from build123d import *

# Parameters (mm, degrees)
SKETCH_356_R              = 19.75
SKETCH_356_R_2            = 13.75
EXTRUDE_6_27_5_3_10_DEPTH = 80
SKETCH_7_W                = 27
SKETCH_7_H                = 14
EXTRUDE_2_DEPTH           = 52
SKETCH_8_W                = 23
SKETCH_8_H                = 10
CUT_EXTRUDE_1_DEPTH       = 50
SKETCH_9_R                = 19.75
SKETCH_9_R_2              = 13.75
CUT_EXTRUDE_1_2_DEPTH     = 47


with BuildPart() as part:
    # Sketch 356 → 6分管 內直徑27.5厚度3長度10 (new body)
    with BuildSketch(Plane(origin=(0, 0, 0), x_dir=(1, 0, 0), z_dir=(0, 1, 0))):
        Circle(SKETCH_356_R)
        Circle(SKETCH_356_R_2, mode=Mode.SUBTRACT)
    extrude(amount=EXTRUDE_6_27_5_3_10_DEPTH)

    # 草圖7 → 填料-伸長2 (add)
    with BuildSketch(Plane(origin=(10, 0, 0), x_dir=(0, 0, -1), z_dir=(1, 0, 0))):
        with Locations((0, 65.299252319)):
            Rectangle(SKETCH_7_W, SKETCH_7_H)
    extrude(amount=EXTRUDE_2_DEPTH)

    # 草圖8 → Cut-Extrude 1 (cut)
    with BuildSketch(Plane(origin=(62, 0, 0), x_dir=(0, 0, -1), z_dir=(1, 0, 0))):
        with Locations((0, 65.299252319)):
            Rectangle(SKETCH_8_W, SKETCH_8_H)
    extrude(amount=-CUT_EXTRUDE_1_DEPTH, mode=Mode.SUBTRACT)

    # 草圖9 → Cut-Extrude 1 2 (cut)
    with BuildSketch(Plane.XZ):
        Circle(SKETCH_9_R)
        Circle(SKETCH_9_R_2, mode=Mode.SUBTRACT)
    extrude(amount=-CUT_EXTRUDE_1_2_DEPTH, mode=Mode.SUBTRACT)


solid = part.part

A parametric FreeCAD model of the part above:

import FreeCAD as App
import Part
import Sketcher
from FreeCAD import Vector
Q = App.Units.Quantity

doc = App.newDocument("Part")
body = doc.addObject("PartDesign::Body", "Body")

# Sketch on XZ plane
sketch1 = body.newObject("Sketcher::SketchObject", "Sketch")
sketch1.AttachmentSupport = (doc.getObject("XZ_Plane"), [""])
sketch1.MapMode = "FlatFace"
sketch1.addGeometry([
    Part.Circle(Vector(0, 0, 0), Vector(0, 0, 1), 19.75),
    Part.Circle(Vector(0, 0, 0), Vector(0, 0, 1), 13.75),
], False)
sketch1.addConstraint([
    Sketcher.Constraint("Coincident", 0, 3, -1, 1),
    Sketcher.Constraint("Coincident", 1, 3, -1, 1),
    Sketcher.Constraint("Diameter", 0, Q("39.5 mm")),
    Sketcher.Constraint("Diameter", 1, Q("27.5 mm")),
])
pad1 = body.newObject("PartDesign::Pad", "Pad")
pad1.Profile = sketch1
pad1.Length = 80
pad1.Reversed = True

# Sketch on YZ plane
sketch2 = body.newObject("Sketcher::SketchObject", "Sketch001")
sketch2.AttachmentSupport = (doc.getObject("YZ_Plane"), [""])
sketch2.MapMode = "FlatFace"
sketch2.AttachmentOffset = App.Placement(Vector(0, 0, 10), App.Rotation())
sketch2.addGeometry([
    Part.LineSegment(Vector(72.299252, 13.5, 0), Vector(58.299252, 13.5, 0)),
    Part.LineSegment(Vector(58.299252, 13.5, 0), Vector(58.299252, -13.5, 0)),
    Part.LineSegment(Vector(58.299252, -13.5, 0), Vector(72.299252, -13.5, 0)),
    Part.LineSegment(Vector(72.299252, -13.5, 0), Vector(72.299252, 13.5, 0)),
], False)
sketch2.addConstraint([
    Sketcher.Constraint("Coincident", 0, 2, 1, 1),
    Sketcher.Constraint("Coincident", 1, 2, 2, 1),
    Sketcher.Constraint("Coincident", 2, 2, 3, 1),
    Sketcher.Constraint("Coincident", 3, 2, 0, 1),
    Sketcher.Constraint("Horizontal", 0),
    Sketcher.Constraint("Vertical", 1),
    Sketcher.Constraint("Horizontal", 2),
    Sketcher.Constraint("Vertical", 3),
    Sketcher.Constraint("DistanceX", 0, 2, 0, 1, Q("14 mm")),
    Sketcher.Constraint("DistanceY", 1, 2, 1, 1, Q("27 mm")),
    Sketcher.Constraint("DistanceY", -1, 1, 0, 2, Q("13.5 mm")),
    Sketcher.Constraint("DistanceX", -1, 1, 0, 2, Q("58.299252 mm")),
])
pad2 = body.newObject("PartDesign::Pad", "Pad001")
pad2.Profile = sketch2
pad2.Length = 52

# Sketch on YZ plane
sketch3 = body.newObject("Sketcher::SketchObject", "Sketch002")
sketch3.AttachmentSupport = (doc.getObject("YZ_Plane"), [""])
sketch3.MapMode = "FlatFace"
sketch3.AttachmentOffset = App.Placement(Vector(0, 0, 62), App.Rotation())
sketch3.addGeometry([
    Part.LineSegment(Vector(70.299252, 11.5, 0), Vector(60.299252, 11.5, 0)),
    Part.LineSegment(Vector(60.299252, 11.5, 0), Vector(60.299252, -11.5, 0)),
    Part.LineSegment(Vector(60.299252, -11.5, 0), Vector(70.299252, -11.5, 0)),
    Part.LineSegment(Vector(70.299252, -11.5, 0), Vector(70.299252, 11.5, 0)),
], False)
sketch3.addConstraint([
    Sketcher.Constraint("Coincident", 0, 2, 1, 1),
    Sketcher.Constraint("Coincident", 1, 2, 2, 1),
    Sketcher.Constraint("Coincident", 2, 2, 3, 1),
    Sketcher.Constraint("Coincident", 3, 2, 0, 1),
    Sketcher.Constraint("Horizontal", 0),
    Sketcher.Constraint("Vertical", 1),
    Sketcher.Constraint("Horizontal", 2),
    Sketcher.Constraint("Vertical", 3),
    Sketcher.Constraint("DistanceX", 0, 2, 0, 1, Q("10 mm")),
    Sketcher.Constraint("DistanceY", 1, 2, 1, 1, Q("23 mm")),
    Sketcher.Constraint("DistanceY", -1, 1, 0, 2, Q("11.5 mm")),
    Sketcher.Constraint("DistanceX", -1, 1, 0, 2, Q("60.299252 mm")),
])
pocket1 = body.newObject("PartDesign::Pocket", "Pocket")
pocket1.Profile = sketch3
pocket1.Length = 50

# Sketch on XZ plane
sketch4 = body.newObject("Sketcher::SketchObject", "Sketch003")
sketch4.AttachmentSupport = (doc.getObject("XZ_Plane"), [""])
sketch4.MapMode = "FlatFace"
sketch4.addGeometry([
    Part.Circle(Vector(0, 0, 0), Vector(0, 0, 1), 19.75),
    Part.Circle(Vector(0, 0, 0), Vector(0, 0, 1), 13.75),
], False)
sketch4.addConstraint([
    Sketcher.Constraint("Coincident", 0, 3, -1, 1),
    Sketcher.Constraint("Coincident", 1, 3, -1, 1),
    Sketcher.Constraint("Diameter", 0, Q("39.5 mm")),
    Sketcher.Constraint("Diameter", 1, Q("27.5 mm")),
])
pocket2 = body.newObject("PartDesign::Pocket", "Pocket001")
pocket2.Profile = sketch4
pocket2.Length = 47

doc.recompute()
